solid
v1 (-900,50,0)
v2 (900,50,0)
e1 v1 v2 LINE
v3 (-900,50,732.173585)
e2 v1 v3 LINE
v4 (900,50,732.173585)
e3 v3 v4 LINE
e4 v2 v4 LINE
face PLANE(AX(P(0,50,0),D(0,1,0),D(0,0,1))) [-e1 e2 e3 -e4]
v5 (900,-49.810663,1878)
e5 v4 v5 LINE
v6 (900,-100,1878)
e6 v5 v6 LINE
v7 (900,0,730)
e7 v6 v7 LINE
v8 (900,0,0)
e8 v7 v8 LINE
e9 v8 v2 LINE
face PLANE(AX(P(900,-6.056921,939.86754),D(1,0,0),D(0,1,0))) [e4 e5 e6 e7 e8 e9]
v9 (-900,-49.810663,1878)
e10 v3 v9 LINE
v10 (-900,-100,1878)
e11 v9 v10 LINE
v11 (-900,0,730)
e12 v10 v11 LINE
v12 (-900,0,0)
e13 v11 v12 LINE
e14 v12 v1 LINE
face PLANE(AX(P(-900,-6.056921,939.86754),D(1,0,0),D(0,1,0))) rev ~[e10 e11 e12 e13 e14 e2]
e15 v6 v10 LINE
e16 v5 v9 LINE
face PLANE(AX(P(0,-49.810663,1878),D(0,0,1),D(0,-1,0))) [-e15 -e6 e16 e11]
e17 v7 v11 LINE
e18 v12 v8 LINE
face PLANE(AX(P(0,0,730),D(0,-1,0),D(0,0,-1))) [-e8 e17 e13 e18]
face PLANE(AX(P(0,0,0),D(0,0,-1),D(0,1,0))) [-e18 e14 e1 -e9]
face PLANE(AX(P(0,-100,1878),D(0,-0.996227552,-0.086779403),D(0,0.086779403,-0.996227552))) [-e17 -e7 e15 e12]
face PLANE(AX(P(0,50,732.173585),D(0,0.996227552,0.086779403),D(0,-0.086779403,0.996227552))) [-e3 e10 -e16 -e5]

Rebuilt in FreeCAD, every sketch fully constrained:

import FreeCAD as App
import Part
import Sketcher
from FreeCAD import Vector
Q = App.Units.Quantity

doc = App.newDocument("Part")
body = doc.addObject("PartDesign::Body", "Body")

sketch1 = body.newObject("Sketcher::SketchObject", "Sketch")
sketch1.AttachmentSupport = (doc.getObject("YZ_Plane"), [""])
sketch1.MapMode = "FlatFace"
sketch1.addGeometry(Part.LineSegment(Vector(0, 730, 0), Vector(0, 0, 0)), False)
sketch1.addGeometry(Part.LineSegment(Vector(0, 0, 0), Vector(50, 0, 0)), False)
sketch1.addGeometry(Part.LineSegment(Vector(50, 0, 0), Vector(50, 732, 0)), False)
sketch1.addGeometry(Part.LineSegment(Vector(50, 732, 0), Vector(-50, 1878, 0)), False)
sketch1.addGeometry(Part.LineSegment(Vector(-50, 1878, 0), Vector(-100, 1878, 0)), False)
sketch1.addGeometry(Part.LineSegment(Vector(-100, 1878, 0), Vector(0, 730, 0)), False)
sketch1.addConstraint(Sketcher.Constraint("Coincident", 0, 2, 1, 1))
sketch1.addConstraint(Sketcher.Constraint("Coincident", 1, 2, 2, 1))
sketch1.addConstraint(Sketcher.Constraint("Coincident", 2, 2, 3, 1))
sketch1.addConstraint(Sketcher.Constraint("Coincident", 3, 2, 4, 1))
sketch1.addConstraint(Sketcher.Constraint("Coincident", 4, 2, 5, 1))
sketch1.addConstraint(Sketcher.Constraint("Coincident", 5, 2, 0, 1))
sketch1.addConstraint(Sketcher.Constraint("Vertical", 0))
sketch1.addConstraint(Sketcher.Constraint("Horizontal", 1))
sketch1.addConstraint(Sketcher.Constraint("Vertical", 2))
sketch1.addConstraint(Sketcher.Constraint("Horizontal", 4))
sketch1.addConstraint(Sketcher.Constraint("Coincident", 0, 2, -1, 1))
sketch1.addConstraint(Sketcher.Constraint("Parallel", 3, 5))
sketch1.addConstraint(Sketcher.Constraint("DistanceX", 1, 1, 1, 2, Q("50 mm")))
sketch1.addConstraint(Sketcher.Constraint("DistanceY", 0, 2, 0, 1, Q("730 mm")))
sketch1.addConstraint(Sketcher.Constraint("DistanceY", -1, 1, 3, 2, Q("1878 mm")))
sketch1.addConstraint(Sketcher.Constraint("DistanceX", 4, 2, -1, 1, Q("100 mm")))
sketch1.addConstraint(Sketcher.Constraint("DistanceX", 4, 2, 4, 1, Q("50.189337 mm")))
pad1 = body.newObject("PartDesign::Pad", "Pad")
pad1.Profile = sketch1
pad1.Type = "TwoLengths"
pad1.Length = 900
pad1.Length2 = 900

doc.recompute()
